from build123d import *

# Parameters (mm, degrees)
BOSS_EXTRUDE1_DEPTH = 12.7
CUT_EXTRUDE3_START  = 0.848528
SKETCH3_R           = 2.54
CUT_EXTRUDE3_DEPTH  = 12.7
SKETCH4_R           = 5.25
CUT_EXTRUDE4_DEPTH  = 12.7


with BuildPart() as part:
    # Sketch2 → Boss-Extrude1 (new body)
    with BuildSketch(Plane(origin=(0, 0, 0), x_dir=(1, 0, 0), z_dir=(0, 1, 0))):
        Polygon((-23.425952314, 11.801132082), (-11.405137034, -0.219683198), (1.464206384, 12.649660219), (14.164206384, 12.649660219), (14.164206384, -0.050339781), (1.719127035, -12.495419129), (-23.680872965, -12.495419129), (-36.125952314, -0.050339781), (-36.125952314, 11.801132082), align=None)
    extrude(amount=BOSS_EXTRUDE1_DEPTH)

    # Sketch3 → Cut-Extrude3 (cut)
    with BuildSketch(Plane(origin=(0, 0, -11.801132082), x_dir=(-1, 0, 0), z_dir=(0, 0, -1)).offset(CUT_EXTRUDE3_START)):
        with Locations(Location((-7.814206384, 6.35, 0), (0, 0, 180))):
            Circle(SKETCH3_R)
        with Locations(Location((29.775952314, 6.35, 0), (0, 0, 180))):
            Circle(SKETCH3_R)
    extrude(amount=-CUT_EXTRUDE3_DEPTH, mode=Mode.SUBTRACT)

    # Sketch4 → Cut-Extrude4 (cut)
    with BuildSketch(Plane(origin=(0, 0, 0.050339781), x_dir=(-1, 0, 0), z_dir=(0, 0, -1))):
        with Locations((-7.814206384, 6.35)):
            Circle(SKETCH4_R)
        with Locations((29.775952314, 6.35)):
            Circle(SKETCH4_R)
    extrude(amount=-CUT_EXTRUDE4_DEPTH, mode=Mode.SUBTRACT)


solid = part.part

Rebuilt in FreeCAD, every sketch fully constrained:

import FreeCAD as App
import Part
import Sketcher
from FreeCAD import Vector

doc = App.newDocument("Part")
body = doc.addObject("PartDesign::Body", "Body")

sketch1 = doc.addObject("Sketcher::SketchObject", "Sketch")
body.addObject(sketch1)
sketch1.AttachmentSupport = (doc.XZ_Plane, [""])
sketch1.MapMode = "FlatFace"
sketch1.addGeometry(Part.LineSegment(Vector(-11, 0, 0), Vector(-23, -12, 0)), False)
sketch1.addGeometry(Part.LineSegment(Vector(-23, -12, 0), Vector(-36, -12, 0)), False)
sketch1.addGeometry(Part.LineSegment(Vector(-36, -12, 0), Vector(-36, 0, 0)), False)
sketch1.addGeometry(Part.LineSegment(Vector(-36, 0, 0), Vector(-24, 12, 0)), False)
sketch1.addGeometry(Part.LineSegment(Vector(-24, 12, 0), Vector(2, 12, 0)), False)
sketch1.addGeometry(Part.LineSegment(Vector(2, 12, 0), Vector(14, 0, 0)), False)
sketch1.addGeometry(Part.LineSegment(Vector(14, 0, 0), Vector(14, -13, 0)), False)
sketch1.addGeometry(Part.LineSegment(Vector(14, -13, 0), Vector(1, -13, 0)), False)
sketch1.addGeometry(Part.LineSegment(Vector(1, -13, 0), Vector(-11, 0, 0)), False)
sketch1.addConstraint(Sketcher.Constraint("Coincident", 0, 2, 1, 1))
sketch1.addConstraint(Sketcher.Constraint("Coincident", 1, 2, 2, 1))
sketch1.addConstraint(Sketcher.Constraint("Coincident", 2, 2, 3, 1))
sketch1.addConstraint(Sketcher.Constraint("Coincident", 3, 2, 4, 1))
sketch1.addConstraint(Sketcher.Constraint("Coincident", 4, 2, 5, 1))
sketch1.addConstraint(Sketcher.Constraint("Coincident", 5, 2, 6, 1))
sketch1.addConstraint(Sketcher.Constraint("Coincident", 6, 2, 7, 1))
sketch1.addConstraint(Sketcher.Constraint("Coincident", 7, 2, 8, 1))
sketch1.addConstraint(Sketcher.Constraint("Coincident", 8, 2, 0, 1))
sketch1.addConstraint(Sketcher.Constraint("Horizontal", 1))
sketch1.addConstraint(Sketcher.Constraint("Vertical", 2))
sketch1.addConstraint(Sketcher.Constraint("Horizontal", 4))
sketch1.addConstraint(Sketcher.Constraint("Vertical", 6))
sketch1.addConstraint(Sketcher.Constraint("Horizontal", 7))
sketch1.addConstraint(Sketcher.Constraint("Parallel", 0, 3))
sketch1.addConstraint(Sketcher.Constraint("Perpendicular", 3, 5))
sketch1.addConstraint(Sketcher.Constraint("Parallel", 5, 8))
sketch1.addConstraint(Sketcher.Constraint("Horizontal", 2, 2, 5, 2))
sketch1.addConstraint(Sketcher.Constraint("Equal", 1, 7))
sketch1.addConstraint(Sketcher.Constraint("Equal", 7, 6))
sketch1.addConstraint(Sketcher.Constraint("Equal", 3, 5))
sketch1.addConstraint(Sketcher.Constraint("Distance", 0, 17.0))
sketch1.addConstraint(Sketcher.Constraint("DistanceX", 1, 2, 1, 1, 12.7))
sketch1.addConstraint(Sketcher.Constraint("DistanceX", 4, 1, 4, 2, 25.4))
sketch1.addConstraint(Sketcher.Constraint("Distance", 3, 17.6))
sketch1.addConstraint(Sketcher.Constraint("DistanceY", -1, 1, 2, 2, 0.05034))
sketch1.addConstraint(Sketcher.Constraint("DistanceX", 0, 2, -1, 1, 23.425952))
pad1 = doc.addObject("PartDesign::Pad", "Pad")
body.addObject(pad1)
pad1.Profile = sketch1
pad1.Length = 12.7
pad1.Reversed = True

sketch2 = doc.addObject("Sketcher::SketchObject", "Sketch001")
body.addObject(sketch2)
sketch2.AttachmentSupport = (doc.XY_Plane, [""])
sketch2.MapMode = "FlatFace"
sketch2.AttachmentOffset = App.Placement(Vector(0, 0, -12.64966), App.Rotation())
sketch2.addGeometry(Part.Circle(Vector(7.8, 6.3, 0), Vector(0, 0, 1), 2.5), False)
sketch2.addGeometry(Part.Circle(Vector(-29.8, 6.3, 0), Vector(0, 0, 1), 2.5), False)
sketch2.addConstraint(Sketcher.Constraint("Equal", 0, 1))
sketch2.addConstraint(Sketcher.Constraint("Horizontal", 0, 3, 1, 3))
sketch2.addConstraint(Sketcher.Constraint("Diameter", 0, 5.08))
sketch2.addConstraint(Sketcher.Constraint("DistanceY", -1, 1, 0, 3, 6.35))
sketch2.addConstraint(Sketcher.Constraint("DistanceX", 1, 3, 0, 3, 37.590159))
sketch2.addConstraint(Sketcher.Constraint("DistanceX", -1, 1, 0, 3, 7.814206))
pocket1 = doc.addObject("PartDesign::Pocket", "Pocket")
body.addObject(pocket1)
pocket1.Profile = sketch2
pocket1.Length = 12.7
pocket1.Reversed = True

sketch3 = doc.addObject("Sketcher::SketchObject", "Sketch002")
body.addObject(sketch3)
sketch3.AttachmentSupport = (doc.XY_Plane, [""])
sketch3.MapMode = "FlatFace"
sketch3.AttachmentOffset = App.Placement(Vector(0, 0, 0.05034), App.Rotation())
sketch3.addGeometry(Part.Circle(Vector(8, 6, 0), Vector(0, 0, 1), 5), False)
sketch3.addGeometry(Part.Circle(Vector(-30, 6, 0), Vector(0, 0, 1), 5), False)
sketch3.addConstraint(Sketcher.Constraint("Equal", 0, 1))
sketch3.addConstraint(Sketcher.Constraint("Horizontal", 0, 3, 1, 3))
sketch3.addConstraint(Sketcher.Constraint("Diameter", 0, 10.5))
sketch3.addConstraint(Sketcher.Constraint("DistanceY", -1, 1, 0, 3, 6.35))
sketch3.addConstraint(Sketcher.Constraint("DistanceX", 1, 3, 0, 3, 37.590159))
sketch3.addConstraint(Sketcher.Constraint("DistanceX", -1, 1, 0, 3, 7.814206))
pocket2 = doc.addObject("PartDesign::Pocket", "Pocket001")
body.addObject(pocket2)
pocket2.Profile = sketch3
pocket2.Length = 12.7
pocket2.Reversed = True

doc.recompute()
